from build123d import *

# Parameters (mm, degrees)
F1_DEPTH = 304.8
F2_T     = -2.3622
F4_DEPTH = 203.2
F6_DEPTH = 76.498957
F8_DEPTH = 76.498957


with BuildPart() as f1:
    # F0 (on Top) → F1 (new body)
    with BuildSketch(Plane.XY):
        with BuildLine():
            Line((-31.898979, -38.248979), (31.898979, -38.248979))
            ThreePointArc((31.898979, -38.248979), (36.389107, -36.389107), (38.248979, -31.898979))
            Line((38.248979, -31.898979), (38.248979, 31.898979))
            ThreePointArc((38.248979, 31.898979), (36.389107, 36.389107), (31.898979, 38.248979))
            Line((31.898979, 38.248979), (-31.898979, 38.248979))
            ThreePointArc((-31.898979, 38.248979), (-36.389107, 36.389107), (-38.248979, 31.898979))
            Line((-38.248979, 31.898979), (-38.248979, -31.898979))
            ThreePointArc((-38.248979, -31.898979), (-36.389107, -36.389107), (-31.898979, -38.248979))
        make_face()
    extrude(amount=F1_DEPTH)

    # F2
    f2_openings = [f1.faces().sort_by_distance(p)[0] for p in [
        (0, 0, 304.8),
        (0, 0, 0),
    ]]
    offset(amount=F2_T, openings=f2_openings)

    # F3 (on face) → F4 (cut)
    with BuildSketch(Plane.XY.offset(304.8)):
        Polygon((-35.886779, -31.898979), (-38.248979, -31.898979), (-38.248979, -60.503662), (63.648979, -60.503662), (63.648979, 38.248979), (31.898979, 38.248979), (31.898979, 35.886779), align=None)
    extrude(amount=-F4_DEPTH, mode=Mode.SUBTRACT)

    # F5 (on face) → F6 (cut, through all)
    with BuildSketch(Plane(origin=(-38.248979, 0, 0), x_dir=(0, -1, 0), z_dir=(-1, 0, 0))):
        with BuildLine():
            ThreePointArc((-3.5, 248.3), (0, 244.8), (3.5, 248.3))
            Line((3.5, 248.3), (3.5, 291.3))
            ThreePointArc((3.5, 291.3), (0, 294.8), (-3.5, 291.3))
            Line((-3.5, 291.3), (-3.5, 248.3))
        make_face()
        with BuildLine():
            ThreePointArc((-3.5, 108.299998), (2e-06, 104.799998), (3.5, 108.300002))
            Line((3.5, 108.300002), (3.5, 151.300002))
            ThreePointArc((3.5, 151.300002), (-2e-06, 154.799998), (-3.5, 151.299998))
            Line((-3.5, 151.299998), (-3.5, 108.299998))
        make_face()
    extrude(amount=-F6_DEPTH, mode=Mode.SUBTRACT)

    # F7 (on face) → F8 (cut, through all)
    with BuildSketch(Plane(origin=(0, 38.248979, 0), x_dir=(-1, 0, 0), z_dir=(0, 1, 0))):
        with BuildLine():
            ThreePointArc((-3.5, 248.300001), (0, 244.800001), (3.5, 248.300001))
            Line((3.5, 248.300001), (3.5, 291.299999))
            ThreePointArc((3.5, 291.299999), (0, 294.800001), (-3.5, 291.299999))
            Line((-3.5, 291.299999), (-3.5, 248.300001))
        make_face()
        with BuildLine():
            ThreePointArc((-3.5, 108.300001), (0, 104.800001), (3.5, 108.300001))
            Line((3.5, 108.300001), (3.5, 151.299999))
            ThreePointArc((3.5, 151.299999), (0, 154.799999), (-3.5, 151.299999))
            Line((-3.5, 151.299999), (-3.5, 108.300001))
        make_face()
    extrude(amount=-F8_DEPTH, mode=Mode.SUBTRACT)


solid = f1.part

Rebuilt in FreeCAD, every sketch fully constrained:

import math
import FreeCAD as App
import Part
import Sketcher
from FreeCAD import Vector
Q = App.Units.Quantity


def faces_at(feature, points):
    """Names of the faces that lie closest to the given points."""
    faces = feature.Shape.Faces
    near = lambda p: min(range(len(faces)), key=lambda i: faces[i].distToShape(Part.Vertex(*p))[0])
    return sorted({f"Face{near(p) + 1}" for p in points})


def add_polygon(sketch, points):
    """Adds a closed chain of lines whose ends are joined by coincident constraints."""
    first, n = sketch.GeometryCount, len(points)
    for a, b in zip(points, points[1:] + points[:1]):
        sketch.addGeometry(Part.LineSegment(App.Vector(*a, 0), App.Vector(*b, 0)), False)
    for i in range(n):
        sketch.addConstraint(Sketcher.Constraint("Coincident", first + i, 2, first + (i + 1) % n, 1))

doc = App.newDocument("Part")
params = doc.addObject("Spreadsheet::Sheet", "Params")
for row, (alias, value) in enumerate([
    ("sketch1_radius", "0.25 in"),
    ("pad1_length", "12 in"),
    ("thickness_wall", "0.093 in"),
    ("sketch2_width", "1.25 in"),
    ("sketch2_width2", "0.093 in"),
    ("pocket1_length", "8 in"),
], start=1):
    params.set(f"A{row}", alias)
    params.set(f"B{row}", "=" + value)
    params.setAlias(f"B{row}", alias)

body = doc.addObject("PartDesign::Body", "Body")

# Sketch on XY plane
sketch1 = body.newObject("Sketcher::SketchObject", "Sketch")
sketch1.AttachmentSupport = (doc.getObject("XY_Plane"), [""])
sketch1.MapMode = "FlatFace"
sketch1.addGeometry([
    Part.LineSegment(Vector(-32, -38, 0), Vector(32, -38, 0)),  # 0
    Part.ArcOfCircle(Part.Circle(Vector(32, -32, 0), Vector(0, 0, 1), 6), math.radians(-90), math.radians(0)),  # 1
    Part.LineSegment(Vector(38, -32, 0), Vector(38, 32, 0)),  # 2
    Part.ArcOfCircle(Part.Circle(Vector(32, 32, 0), Vector(0, 0, 1), 6), math.radians(0), math.radians(90)),  # 3
    Part.LineSegment(Vector(32, 38, 0), Vector(-32, 38, 0)),  # 4
    Part.ArcOfCircle(Part.Circle(Vector(-32, 32, 0), Vector(0, 0, 1), 6), math.radians(90), math.radians(180)),  # 5
    Part.LineSegment(Vector(-38, 32, 0), Vector(-38, -32, 0)),  # 6
    Part.ArcOfCircle(Part.Circle(Vector(-32, -32, 0), Vector(0, 0, 1), 6), math.radians(-180), math.radians(-90)),  # 7
], False)
sketch1.addConstraint([
    Sketcher.Constraint("Tangent", 0, 2, 1, 1),
    Sketcher.Constraint("Tangent", 1, 2, 2, 1),
    Sketcher.Constraint("Tangent", 2, 2, 3, 1),
    Sketcher.Constraint("Tangent", 3, 2, 4, 1),
    Sketcher.Constraint("Tangent", 4, 2, 5, 1),
    Sketcher.Constraint("Tangent", 5, 2, 6, 1),
    Sketcher.Constraint("Tangent", 6, 2, 7, 1),
    Sketcher.Constraint("Tangent", 7, 2, 0, 1),
    Sketcher.Constraint("Horizontal", 0),
    Sketcher.Constraint("Vertical", 2),
    Sketcher.Constraint("Horizontal", 4),
    Sketcher.Constraint("Vertical", 6),
    Sketcher.Constraint("Equal", 1, 3),
    Sketcher.Constraint("Equal", 3, 5),
    Sketcher.Constraint("Equal", 5, 7),
    Sketcher.Constraint("Symmetric", 1, 3, 5, 3, -1, 1),
    Sketcher.Constraint("Equal", 4, 2),
    Sketcher.Constraint("Radius", 1, Q("0.25 in")),
    Sketcher.Constraint("DistanceX", 0, 1, 0, 2, 63.797958),
])
sketch1.setExpression("Constraints[17]", "Params.sketch1_radius")
pad1 = body.newObject("PartDesign::Pad", "Pad")
pad1.Profile = sketch1
pad1.setExpression("Length", "Params.pad1_length")
doc.recompute()

thickness = body.newObject("PartDesign::Thickness", "Thickness")
thickness.Base = (pad1, faces_at(pad1, [(0, 0, 304.8), (0, 0, 0)]))
thickness.setExpression("Value", "Params.thickness_wall")
thickness.Reversed = True
thickness.Join = "Arc"

# Sketch on XY plane
sketch2 = body.newObject("Sketcher::SketchObject", "Sketch001")
sketch2.AttachmentSupport = (doc.getObject("XY_Plane"), [""])
sketch2.MapMode = "FlatFace"
sketch2.AttachmentOffset = App.Placement(Vector(0, 0, 12 * 25.4), App.Rotation())
add_polygon(sketch2, [(-35.9, -31.9), (-38.2, -31.9), (-38.2, -60.5), (63.6, -60.5), (63.6, 38.2), (31.9, 38.2), (31.9, 35.9)])  # lines 0-6
sketch2.addConstraint([
    Sketcher.Constraint("Horizontal", 0),
    Sketcher.Constraint("Vertical", 1),
    Sketcher.Constraint("Horizontal", 2),
    Sketcher.Constraint("Vertical", 3),
    Sketcher.Constraint("Horizontal", 4),
    Sketcher.Constraint("Vertical", 5),
    Sketcher.Constraint("Equal", 0, 5),
    Sketcher.Constraint("Angle", 6, Q("-135 deg")),
    Sketcher.Constraint("DistanceX", 4, 2, 4, 1, Q("1.25 in")),
    Sketcher.Constraint("DistanceX", 0, 2, 0, 1, Q("0.093 in")),
    Sketcher.Constraint("DistanceY", 3, 1, 3, 2, 98.752641),
    Sketcher.Constraint("Distance", 6, 95.863538),
    Sketcher.Constraint("DistanceX", 0, 2, -1, 1, 38.248979),
    Sketcher.Constraint("DistanceY", 0, 2, -1, 1, 31.898979),
])
sketch2.setExpression("Constraints[15]", "Params.sketch2_width")
sketch2.setExpression("Constraints[16]", "Params.sketch2_width2")
pocket1 = body.newObject("PartDesign::Pocket", "Pocket")
pocket1.Profile = sketch2
pocket1.setExpression("Length", "Params.pocket1_length")

# Sketch on YZ plane
sketch3 = body.newObject("Sketcher::SketchObject", "Sketch002")
sketch3.AttachmentSupport = (doc.getObject("YZ_Plane"), [""])
sketch3.MapMode = "FlatFace"
sketch3.AttachmentOffset = App.Placement(Vector(0, 0, -38.248979), App.Rotation())
sketch3.addGeometry([
    Part.ArcOfCircle(Part.Circle(Vector(0, 248.3, 0), Vector(0, 0, 1), 3.5), math.radians(180), math.radians(360)),  # 0
    Part.LineSegment(Vector(-3.5, 248.3, 0), Vector(-3.5, 291.3, 0)),  # 1
    Part.ArcOfCircle(Part.Circle(Vector(0, 291.3, 0), Vector(0, 0, 1), 3.5), math.radians(0), math.radians(180)),  # 2
    Part.LineSegment(Vector(3.5, 291.3, 0), Vector(3.5, 248.3, 0)),  # 3
    Part.ArcOfCircle(Part.Circle(Vector(0, 108.3, 0), Vector(0, 0, 1), 3.5), math.radians(180), math.radians(360)),  # 4
    Part.LineSegment(Vector(-3.5, 108.3, 0), Vector(-3.5, 151.3, 0)),  # 5
    Part.ArcOfCircle(Part.Circle(Vector(0, 151.3, 0), Vector(0, 0, 1), 3.5), math.radians(0), math.radians(180)),  # 6
    Part.LineSegment(Vector(3.5, 151.3, 0), Vector(3.5, 108.3, 0)),  # 7
], False)
sketch3.addConstraint([
    Sketcher.Constraint("Tangent", 0, 1, 1, 1),
    Sketcher.Constraint("Tangent", 1, 2, 2, 2),
    Sketcher.Constraint("Tangent", 2, 1, 3, 1),
    Sketcher.Constraint("Tangent", 3, 2, 0, 2),
    Sketcher.Constraint("Tangent", 4, 1, 5, 1),
    Sketcher.Constraint("Tangent", 5, 2, 6, 2),
    Sketcher.Constraint("Tangent", 6, 1, 7, 1),
    Sketcher.Constraint("Tangent", 7, 2, 4, 2),
    Sketcher.Constraint("Vertical", 1),
    Sketcher.Constraint("Vertical", 3),
    Sketcher.Constraint("Vertical", 5),
    Sketcher.Constraint("Vertical", 7),
    Sketcher.Constraint("Equal", 2, 4),
    Sketcher.Constraint("PointOnObject", 0, 3, -2),
    Sketcher.Constraint("PointOnObject", 4, 3, -2),
    Sketcher.Constraint("Equal", 3, 5),
    Sketcher.Constraint("Radius", 0, 3.5),
    Sketcher.Constraint("DistanceY", 1, 1, 1, 2, 43.0),
    Sketcher.Constraint("DistanceY", -1, 1, 0, 3, 248.3),
    Sketcher.Constraint("DistanceY", -1, 1, 4, 3, 108.299998),
])
pocket2 = body.newObject("PartDesign::Pocket", "Pocket001")
pocket2.Profile = sketch3
pocket2.Type = "ThroughAll"
pocket2.Reversed = True

# Sketch on XZ plane
sketch4 = body.newObject("Sketcher::SketchObject", "Sketch003")
sketch4.AttachmentSupport = (doc.getObject("XZ_Plane"), [""])
sketch4.MapMode = "FlatFace"
sketch4.AttachmentOffset = App.Placement(Vector(0, 0, -38.248979), App.Rotation())
sketch4.addGeometry([
    Part.ArcOfCircle(Part.Circle(Vector(0, 248.3, 0), Vector(0, 0, 1), 3.5), math.radians(180), math.radians(360)),  # 0
    Part.LineSegment(Vector(-3.5, 248.3, 0), Vector(-3.5, 291.3, 0)),  # 1
    Part.ArcOfCircle(Part.Circle(Vector(0, 291.3, 0), Vector(0, 0, 1), 3.5), math.radians(0), math.radians(180)),  # 2
    Part.LineSegment(Vector(3.5, 291.3, 0), Vector(3.5, 248.3, 0)),  # 3
    Part.ArcOfCircle(Part.Circle(Vector(0, 108.3, 0), Vector(0, 0, 1), 3.5), math.radians(180), math.radians(360)),  # 4
    Part.LineSegment(Vector(-3.5, 108.3, 0), Vector(-3.5, 151.3, 0)),  # 5
    Part.ArcOfCircle(Part.Circle(Vector(0, 151.3, 0), Vector(0, 0, 1), 3.5), math.radians(0), math.radians(180)),  # 6
    Part.LineSegment(Vector(3.5, 151.3, 0), Vector(3.5, 108.3, 0)),  # 7
], False)
sketch4.addConstraint([
    Sketcher.Constraint("Tangent", 0, 1, 1, 1),
    Sketcher.Constraint("Tangent", 1, 2, 2, 2),
    Sketcher.Constraint("Tangent", 2, 1, 3, 1),
    Sketcher.Constraint("Tangent", 3, 2, 0, 2),
    Sketcher.Constraint("Tangent", 4, 1, 5, 1),
    Sketcher.Constraint("Tangent", 5, 2, 6, 2),
    Sketcher.Constraint("Tangent", 6, 1, 7, 1),
    Sketcher.Constraint("Tangent", 7, 2, 4, 2),
    Sketcher.Constraint("Vertical", 1),
    Sketcher.Constraint("Vertical", 3),
    Sketcher.Constraint("Vertical", 5),
    Sketcher.Constraint("Vertical", 7),
    Sketcher.Constraint("Equal", 2, 4),
    Sketcher.Constraint("PointOnObject", 0, 3, -2),
    Sketcher.Constraint("PointOnObject", 4, 3, -2),
    Sketcher.Constraint("Equal", 3, 5),
    Sketcher.Constraint("Radius", 0, 3.5),
    Sketcher.Constraint("DistanceY", 1, 1, 1, 2, 42.999998),
    Sketcher.Constraint("DistanceY", -1, 1, 0, 3, 248.300001),
    Sketcher.Constraint("DistanceY", -1, 1, 4, 3, 108.300001),
])
pocket3 = body.newObject("PartDesign::Pocket", "Pocket002")
pocket3.Profile = sketch4
pocket3.Type = "ThroughAll"
pocket3.Reversed = True

doc.recompute()
